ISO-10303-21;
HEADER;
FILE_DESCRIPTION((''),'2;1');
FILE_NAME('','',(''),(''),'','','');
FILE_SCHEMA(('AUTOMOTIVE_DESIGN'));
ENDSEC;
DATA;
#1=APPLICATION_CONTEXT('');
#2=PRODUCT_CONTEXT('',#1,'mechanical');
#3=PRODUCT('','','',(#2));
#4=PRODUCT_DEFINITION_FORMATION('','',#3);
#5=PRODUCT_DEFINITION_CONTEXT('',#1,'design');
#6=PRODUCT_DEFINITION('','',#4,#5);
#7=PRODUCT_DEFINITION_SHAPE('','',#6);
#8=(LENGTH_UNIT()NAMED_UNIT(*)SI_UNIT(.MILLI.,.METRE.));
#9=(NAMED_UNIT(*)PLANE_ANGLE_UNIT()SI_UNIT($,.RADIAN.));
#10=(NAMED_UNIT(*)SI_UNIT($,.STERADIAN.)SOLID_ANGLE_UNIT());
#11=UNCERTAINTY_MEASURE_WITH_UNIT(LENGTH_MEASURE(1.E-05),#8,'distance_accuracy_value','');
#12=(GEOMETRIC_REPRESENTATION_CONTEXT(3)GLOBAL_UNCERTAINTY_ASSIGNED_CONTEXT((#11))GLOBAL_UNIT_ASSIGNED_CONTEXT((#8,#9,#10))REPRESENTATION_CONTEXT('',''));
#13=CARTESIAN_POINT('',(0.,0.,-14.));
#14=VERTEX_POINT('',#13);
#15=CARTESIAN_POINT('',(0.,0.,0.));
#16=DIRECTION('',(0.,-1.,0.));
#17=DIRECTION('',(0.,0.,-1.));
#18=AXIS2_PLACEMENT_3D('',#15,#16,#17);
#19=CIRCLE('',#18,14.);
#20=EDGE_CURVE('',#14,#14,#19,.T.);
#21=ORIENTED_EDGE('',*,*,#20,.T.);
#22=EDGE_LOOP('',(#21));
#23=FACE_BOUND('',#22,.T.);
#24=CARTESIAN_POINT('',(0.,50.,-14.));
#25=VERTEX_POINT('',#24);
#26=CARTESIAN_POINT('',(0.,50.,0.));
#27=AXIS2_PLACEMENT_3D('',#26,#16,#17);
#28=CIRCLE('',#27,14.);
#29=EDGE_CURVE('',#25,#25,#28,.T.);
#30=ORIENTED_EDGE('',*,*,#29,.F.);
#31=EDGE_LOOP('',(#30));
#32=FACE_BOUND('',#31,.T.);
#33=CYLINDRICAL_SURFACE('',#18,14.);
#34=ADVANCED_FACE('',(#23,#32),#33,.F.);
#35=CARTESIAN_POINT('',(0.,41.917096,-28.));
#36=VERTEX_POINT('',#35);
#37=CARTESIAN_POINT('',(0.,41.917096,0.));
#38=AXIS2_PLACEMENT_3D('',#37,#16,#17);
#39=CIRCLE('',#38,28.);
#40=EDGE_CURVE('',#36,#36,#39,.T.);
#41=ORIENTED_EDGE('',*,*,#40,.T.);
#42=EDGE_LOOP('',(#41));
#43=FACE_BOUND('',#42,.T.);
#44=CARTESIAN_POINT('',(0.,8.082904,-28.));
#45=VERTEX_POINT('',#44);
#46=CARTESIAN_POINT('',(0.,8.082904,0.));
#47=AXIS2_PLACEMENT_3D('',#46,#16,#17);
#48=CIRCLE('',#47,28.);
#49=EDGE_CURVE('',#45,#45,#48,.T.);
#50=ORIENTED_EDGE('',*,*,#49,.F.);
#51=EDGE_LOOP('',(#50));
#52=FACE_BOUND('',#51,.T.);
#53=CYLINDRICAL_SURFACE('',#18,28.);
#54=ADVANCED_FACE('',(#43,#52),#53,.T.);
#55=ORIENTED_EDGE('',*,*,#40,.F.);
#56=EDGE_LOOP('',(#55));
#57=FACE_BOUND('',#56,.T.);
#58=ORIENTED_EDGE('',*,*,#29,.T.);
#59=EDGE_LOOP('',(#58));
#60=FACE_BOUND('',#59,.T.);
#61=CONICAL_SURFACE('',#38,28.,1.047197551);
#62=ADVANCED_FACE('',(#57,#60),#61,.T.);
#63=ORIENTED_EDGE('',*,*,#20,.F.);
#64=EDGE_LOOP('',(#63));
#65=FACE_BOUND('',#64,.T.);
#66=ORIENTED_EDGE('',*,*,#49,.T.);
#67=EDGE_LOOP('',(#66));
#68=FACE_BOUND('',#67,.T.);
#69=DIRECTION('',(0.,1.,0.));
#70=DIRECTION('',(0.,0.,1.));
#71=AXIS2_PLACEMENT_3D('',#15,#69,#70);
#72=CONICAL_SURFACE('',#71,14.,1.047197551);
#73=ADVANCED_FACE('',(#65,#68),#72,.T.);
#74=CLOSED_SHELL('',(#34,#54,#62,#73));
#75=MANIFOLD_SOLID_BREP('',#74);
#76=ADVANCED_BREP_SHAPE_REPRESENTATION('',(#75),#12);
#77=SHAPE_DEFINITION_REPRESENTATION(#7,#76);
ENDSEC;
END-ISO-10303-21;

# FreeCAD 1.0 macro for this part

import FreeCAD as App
import Part
import Sketcher
from FreeCAD import Vector
Q = App.Units.Quantity


def add_polygon(sketch, points):
    """Adds a closed chain of lines whose ends are joined by coincident constraints."""
    first, n = sketch.GeometryCount, len(points)
    for a, b in zip(points, points[1:] + points[:1]):
        sketch.addGeometry(Part.LineSegment(App.Vector(*a, 0), App.Vector(*b, 0)), False)
    for i in range(n):
        sketch.addConstraint(Sketcher.Constraint("Coincident", first + i, 2, first + (i + 1) % n, 1))

doc = App.newDocument("Part")
params = doc.addObject("Spreadsheet::Sheet", "Params")
for row, (alias, value) in enumerate([
    ("sketch1_height", "50 mm"),
    ("revolution_angle", "360 deg"),
], start=1):
    params.set(f"A{row}", alias)
    params.set(f"B{row}", "=" + value)
    params.setAlias(f"B{row}", alias)

body = doc.addObject("PartDesign::Body", "Body")

sketch1 = doc.addObject("Sketcher::SketchObject", "Sketch")
body.addObject(sketch1)
sketch1.AttachmentSupport = (doc.XY_Plane, [""])
sketch1.MapMode = "FlatFace"
add_polygon(sketch1, [(14, 50), (14, 0), (28, 8), (28, 42)])
sketch1.addConstraint(Sketcher.Constraint("Vertical", 0))
sketch1.addConstraint(Sketcher.Constraint("Vertical", 2))
sketch1.addConstraint(Sketcher.Constraint("PointOnObject", 0, 2, -1))
sketch1.addConstraint(Sketcher.Constraint("Equal", 1, 3))
sketch1.addConstraint(Sketcher.Constraint("DistanceY", 0, 2, 0, 1, Q("50 mm")))
sketch1.addConstraint(Sketcher.Constraint("Angle", 1, Q("30 deg")))
sketch1.addConstraint(Sketcher.Constraint("DistanceX", -1, 1, 0, 2, Q("14 mm")))
sketch1.addConstraint(Sketcher.Constraint("DistanceX", -1, 1, 1, 2, Q("28 mm")))
sketch1.setExpression("Constraints[8]", "Params.sketch1_height")
revolution = doc.addObject("PartDesign::Revolution", "Revolution")
body.addObject(revolution)
revolution.Profile = sketch1
revolution.ReferenceAxis = (sketch1, ["V_Axis"])
revolution.setExpression("Angle", "Params.revolution_angle")

doc.recompute()
